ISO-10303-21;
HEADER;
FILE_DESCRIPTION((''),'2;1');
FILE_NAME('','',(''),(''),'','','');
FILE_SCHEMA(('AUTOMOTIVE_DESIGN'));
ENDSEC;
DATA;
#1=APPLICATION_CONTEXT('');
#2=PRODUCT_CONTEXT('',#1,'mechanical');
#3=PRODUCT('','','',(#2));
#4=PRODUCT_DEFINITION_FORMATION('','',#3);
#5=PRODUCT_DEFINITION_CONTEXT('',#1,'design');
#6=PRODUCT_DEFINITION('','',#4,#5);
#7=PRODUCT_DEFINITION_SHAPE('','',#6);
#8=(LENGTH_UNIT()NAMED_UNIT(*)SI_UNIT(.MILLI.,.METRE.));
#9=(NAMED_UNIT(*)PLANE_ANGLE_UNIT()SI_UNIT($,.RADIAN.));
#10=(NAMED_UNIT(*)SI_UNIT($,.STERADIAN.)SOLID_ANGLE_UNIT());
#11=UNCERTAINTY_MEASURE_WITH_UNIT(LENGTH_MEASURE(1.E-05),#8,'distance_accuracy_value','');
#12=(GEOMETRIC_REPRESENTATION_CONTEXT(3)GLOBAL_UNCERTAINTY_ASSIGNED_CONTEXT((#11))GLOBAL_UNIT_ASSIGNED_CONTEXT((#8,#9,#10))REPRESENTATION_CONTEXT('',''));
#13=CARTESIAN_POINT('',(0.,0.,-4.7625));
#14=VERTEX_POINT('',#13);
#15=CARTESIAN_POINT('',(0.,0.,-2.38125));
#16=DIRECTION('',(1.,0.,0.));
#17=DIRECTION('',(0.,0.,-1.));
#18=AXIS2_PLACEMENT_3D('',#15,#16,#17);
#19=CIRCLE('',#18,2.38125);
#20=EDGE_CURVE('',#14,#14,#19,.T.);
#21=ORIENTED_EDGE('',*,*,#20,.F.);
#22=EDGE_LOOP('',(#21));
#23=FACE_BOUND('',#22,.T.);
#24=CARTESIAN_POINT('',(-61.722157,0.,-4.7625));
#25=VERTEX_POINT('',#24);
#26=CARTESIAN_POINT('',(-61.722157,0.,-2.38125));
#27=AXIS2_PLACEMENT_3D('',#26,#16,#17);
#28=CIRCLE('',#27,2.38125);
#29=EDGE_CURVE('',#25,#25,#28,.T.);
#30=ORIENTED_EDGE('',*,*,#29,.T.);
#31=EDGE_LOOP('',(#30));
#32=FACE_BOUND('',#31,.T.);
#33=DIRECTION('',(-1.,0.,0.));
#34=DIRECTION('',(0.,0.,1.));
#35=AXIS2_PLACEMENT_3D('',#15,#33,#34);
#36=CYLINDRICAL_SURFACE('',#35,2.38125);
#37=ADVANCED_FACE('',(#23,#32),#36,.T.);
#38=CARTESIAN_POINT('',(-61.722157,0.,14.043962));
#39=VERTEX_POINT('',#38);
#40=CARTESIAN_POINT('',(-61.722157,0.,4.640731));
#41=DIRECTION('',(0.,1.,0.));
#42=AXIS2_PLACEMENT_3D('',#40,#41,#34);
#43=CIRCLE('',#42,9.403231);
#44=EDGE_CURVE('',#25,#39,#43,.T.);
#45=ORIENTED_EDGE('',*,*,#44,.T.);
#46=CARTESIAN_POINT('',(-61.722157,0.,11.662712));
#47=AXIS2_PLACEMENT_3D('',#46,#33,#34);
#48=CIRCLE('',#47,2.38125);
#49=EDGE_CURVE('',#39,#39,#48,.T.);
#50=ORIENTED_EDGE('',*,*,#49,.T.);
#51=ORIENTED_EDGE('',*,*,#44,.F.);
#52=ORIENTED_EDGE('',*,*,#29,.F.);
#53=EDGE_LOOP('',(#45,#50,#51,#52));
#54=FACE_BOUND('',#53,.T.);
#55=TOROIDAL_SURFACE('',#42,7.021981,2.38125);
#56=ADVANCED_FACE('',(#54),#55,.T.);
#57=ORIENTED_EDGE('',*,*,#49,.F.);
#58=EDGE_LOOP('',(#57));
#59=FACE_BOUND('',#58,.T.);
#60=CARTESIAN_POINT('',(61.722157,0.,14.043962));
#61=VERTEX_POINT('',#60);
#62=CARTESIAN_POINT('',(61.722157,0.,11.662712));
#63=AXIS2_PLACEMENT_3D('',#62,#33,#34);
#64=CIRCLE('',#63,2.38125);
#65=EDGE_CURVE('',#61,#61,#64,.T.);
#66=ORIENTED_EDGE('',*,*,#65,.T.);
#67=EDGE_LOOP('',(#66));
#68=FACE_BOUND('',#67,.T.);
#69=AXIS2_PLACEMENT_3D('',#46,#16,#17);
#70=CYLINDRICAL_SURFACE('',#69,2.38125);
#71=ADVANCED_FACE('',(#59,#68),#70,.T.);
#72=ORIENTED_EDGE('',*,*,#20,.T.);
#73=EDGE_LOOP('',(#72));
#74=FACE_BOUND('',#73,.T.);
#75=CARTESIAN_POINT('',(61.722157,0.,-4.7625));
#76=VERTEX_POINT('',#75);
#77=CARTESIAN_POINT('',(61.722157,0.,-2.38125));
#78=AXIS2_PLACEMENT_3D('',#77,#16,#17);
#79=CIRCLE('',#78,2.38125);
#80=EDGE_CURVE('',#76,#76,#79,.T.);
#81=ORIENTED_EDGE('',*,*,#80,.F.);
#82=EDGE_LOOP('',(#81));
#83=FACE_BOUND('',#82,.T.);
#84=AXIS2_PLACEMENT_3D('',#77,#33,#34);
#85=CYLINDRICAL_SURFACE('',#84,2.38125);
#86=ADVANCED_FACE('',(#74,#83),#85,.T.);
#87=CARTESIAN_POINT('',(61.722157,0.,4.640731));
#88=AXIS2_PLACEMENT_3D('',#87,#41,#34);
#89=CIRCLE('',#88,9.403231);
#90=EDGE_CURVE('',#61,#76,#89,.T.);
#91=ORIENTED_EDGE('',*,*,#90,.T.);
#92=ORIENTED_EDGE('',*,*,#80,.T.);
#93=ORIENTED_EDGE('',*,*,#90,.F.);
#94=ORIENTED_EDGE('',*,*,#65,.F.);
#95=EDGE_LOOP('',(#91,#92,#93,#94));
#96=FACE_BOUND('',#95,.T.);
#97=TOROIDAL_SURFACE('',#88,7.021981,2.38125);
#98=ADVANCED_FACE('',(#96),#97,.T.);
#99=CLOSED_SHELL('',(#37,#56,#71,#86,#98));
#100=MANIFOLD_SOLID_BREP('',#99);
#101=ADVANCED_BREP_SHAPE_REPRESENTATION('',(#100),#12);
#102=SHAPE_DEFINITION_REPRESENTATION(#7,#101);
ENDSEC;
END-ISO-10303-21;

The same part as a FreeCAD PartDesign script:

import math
import FreeCAD as App
import Part
import Sketcher
from FreeCAD import Vector
Q = App.Units.Quantity

doc = App.newDocument("Part")
body = doc.addObject("PartDesign::Body", "Body")

sketch1 = body.newObject("Sketcher::SketchObject", "Sketch")
sketch1.AttachmentSupport = (doc.getObject("YZ_Plane"), [""])
sketch1.MapMode = "FlatFace"
sketch1.addGeometry(Part.Circle(Vector(0, -2.4, 0), Vector(0, 0, 1), 2.4), False)
sketch1.addConstraint(Sketcher.Constraint("PointOnObject", 0, 3, -2))
sketch1.addConstraint(Sketcher.Constraint("Diameter", 0, Q("0.1875 in")))
sketch1.addConstraint(Sketcher.Constraint("DistanceY", 0, 3, -1, 1, Q("0.09375 in")))

sketch2 = body.newObject("Sketcher::SketchObject", "Sketch001")
sketch2.AttachmentSupport = (doc.getObject("XZ_Plane"), [""])
sketch2.MapMode = "FlatFace"
sketch2.addGeometry(Part.LineSegment(Vector(-61.7, 9.3, 0), Vector(61.7, 9.3, 0)), False)
sketch2.addGeometry(Part.ArcOfCircle(Part.Circle(Vector(61.7, 4.6, 0), Vector(0, 0, 1), 4.6), math.radians(-90), math.radians(90)), False)
sketch2.addGeometry(Part.LineSegment(Vector(61.7, 0, 0), Vector(-61.7, 0, 0)), False)
sketch2.addGeometry(Part.ArcOfCircle(Part.Circle(Vector(-61.7, 4.6, 0), Vector(0, 0, 1), 4.6), math.radians(90), math.radians(270)), False)
sketch2.addConstraint(Sketcher.Constraint("Tangent", 0, 2, 1, 2))
sketch2.addConstraint(Sketcher.Constraint("Tangent", 1, 1, 2, 1))
sketch2.addConstraint(Sketcher.Constraint("Tangent", 2, 2, 3, 2))
sketch2.addConstraint(Sketcher.Constraint("Tangent", 3, 1, 0, 1))
sketch2.addConstraint(Sketcher.Constraint("Horizontal", 0))
sketch2.addConstraint(Sketcher.Constraint("Horizontal", 2))
sketch2.addConstraint(Sketcher.Constraint("Symmetric", 1, 1, 2, 2, -1, 1))
sketch2.addConstraint(Sketcher.Constraint("Radius", 1, 4.640731))
sketch2.addConstraint(Sketcher.Constraint("DistanceX", 0, 1, 0, 2, 123.444314))
doc.recompute()

additivepipe = body.newObject("PartDesign::AdditivePipe", "AdditivePipe")
additivepipe.Profile = sketch1
additivepipe.Spine = (sketch2, ["Edge1", "Edge2", "Edge3", "Edge4"])

doc.recompute()
